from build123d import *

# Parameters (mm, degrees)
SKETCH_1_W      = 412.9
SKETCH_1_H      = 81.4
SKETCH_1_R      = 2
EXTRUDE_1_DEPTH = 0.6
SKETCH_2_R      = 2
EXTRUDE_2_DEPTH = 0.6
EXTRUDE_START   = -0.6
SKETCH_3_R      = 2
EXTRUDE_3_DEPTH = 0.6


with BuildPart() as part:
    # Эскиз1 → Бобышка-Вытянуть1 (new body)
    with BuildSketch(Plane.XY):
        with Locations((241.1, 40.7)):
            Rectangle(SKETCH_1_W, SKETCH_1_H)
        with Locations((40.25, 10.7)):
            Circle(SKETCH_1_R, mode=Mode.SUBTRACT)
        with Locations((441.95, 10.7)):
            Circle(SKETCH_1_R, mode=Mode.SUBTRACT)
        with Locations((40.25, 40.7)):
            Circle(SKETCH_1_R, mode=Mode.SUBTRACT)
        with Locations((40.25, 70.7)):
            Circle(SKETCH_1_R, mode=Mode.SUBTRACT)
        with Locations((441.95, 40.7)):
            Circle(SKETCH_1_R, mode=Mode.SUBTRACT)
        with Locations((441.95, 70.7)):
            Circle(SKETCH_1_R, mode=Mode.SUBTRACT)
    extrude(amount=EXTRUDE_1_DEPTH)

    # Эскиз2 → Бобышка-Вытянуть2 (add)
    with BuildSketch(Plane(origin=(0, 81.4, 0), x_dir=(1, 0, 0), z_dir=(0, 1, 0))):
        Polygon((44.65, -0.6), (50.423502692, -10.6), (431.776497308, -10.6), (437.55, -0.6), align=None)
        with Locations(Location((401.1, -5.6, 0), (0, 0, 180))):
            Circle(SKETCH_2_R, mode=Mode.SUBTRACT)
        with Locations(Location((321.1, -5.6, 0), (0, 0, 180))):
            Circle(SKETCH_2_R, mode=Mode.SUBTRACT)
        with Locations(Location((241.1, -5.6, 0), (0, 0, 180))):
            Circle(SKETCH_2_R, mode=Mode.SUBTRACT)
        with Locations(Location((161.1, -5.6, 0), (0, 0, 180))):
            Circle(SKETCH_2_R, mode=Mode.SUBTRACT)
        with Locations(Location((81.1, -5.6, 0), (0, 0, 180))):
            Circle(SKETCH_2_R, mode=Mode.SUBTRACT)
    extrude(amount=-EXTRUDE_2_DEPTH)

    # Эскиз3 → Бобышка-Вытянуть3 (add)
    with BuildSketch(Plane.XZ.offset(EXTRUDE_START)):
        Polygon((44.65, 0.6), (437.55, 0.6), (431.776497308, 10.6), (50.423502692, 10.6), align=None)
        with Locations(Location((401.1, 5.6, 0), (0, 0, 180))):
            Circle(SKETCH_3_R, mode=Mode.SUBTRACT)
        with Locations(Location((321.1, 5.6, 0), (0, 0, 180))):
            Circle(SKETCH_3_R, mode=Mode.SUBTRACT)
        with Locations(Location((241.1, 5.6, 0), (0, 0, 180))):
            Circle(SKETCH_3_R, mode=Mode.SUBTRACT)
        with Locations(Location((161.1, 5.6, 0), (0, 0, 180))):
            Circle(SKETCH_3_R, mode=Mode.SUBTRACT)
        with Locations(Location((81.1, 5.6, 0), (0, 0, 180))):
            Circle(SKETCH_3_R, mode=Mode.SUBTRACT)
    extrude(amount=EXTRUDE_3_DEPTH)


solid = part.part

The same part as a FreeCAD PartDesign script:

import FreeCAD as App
import Part
import Sketcher
from FreeCAD import Vector
Q = App.Units.Quantity

doc = App.newDocument("Part")
body = doc.addObject("PartDesign::Body", "Body")

sketch1 = doc.addObject("Sketcher::SketchObject", "Sketch")
body.addObject(sketch1)
sketch1.AttachmentSupport = (doc.XY_Plane, [""])
sketch1.MapMode = "FlatFace"
sketch1.addGeometry([
    Part.LineSegment(Vector(34.65, 81.4, 0), Vector(34.65, 0, 0)),
    Part.LineSegment(Vector(34.65, 0, 0), Vector(447.55, 0, 0)),
    Part.LineSegment(Vector(447.55, 0, 0), Vector(447.55, 81.4, 0)),
    Part.LineSegment(Vector(447.55, 81.4, 0), Vector(34.65, 81.4, 0)),
    Part.Circle(Vector(40.25, 10.7, 0), Vector(0, 0, 1), 2),
    Part.Circle(Vector(441.95, 10.7, 0), Vector(0, 0, 1), 2),
    Part.Circle(Vector(40.25, 40.7, 0), Vector(0, 0, 1), 2),
    Part.Circle(Vector(40.25, 70.7, 0), Vector(0, 0, 1), 2),
    Part.Circle(Vector(441.95, 40.7, 0), Vector(0, 0, 1), 2),
    Part.Circle(Vector(441.95, 70.7, 0), Vector(0, 0, 1), 2),
], False)
sketch1.addConstraint([
    Sketcher.Constraint("Coincident", 0, 2, 1, 1),
    Sketcher.Constraint("Coincident", 1, 2, 2, 1),
    Sketcher.Constraint("Coincident", 2, 2, 3, 1),
    Sketcher.Constraint("Coincident", 3, 2, 0, 1),
    Sketcher.Constraint("Vertical", 0),
    Sketcher.Constraint("Horizontal", 1),
    Sketcher.Constraint("Vertical", 2),
    Sketcher.Constraint("Horizontal", 3),
    Sketcher.Constraint("Equal", 4, 5),
    Sketcher.Constraint("Equal", 5, 6),
    Sketcher.Constraint("Equal", 6, 7),
    Sketcher.Constraint("Equal", 7, 8),
    Sketcher.Constraint("Equal", 8, 9),
    Sketcher.Constraint("PointOnObject", 0, 2, -1),
    Sketcher.Constraint("Horizontal", 4, 3, 5, 3),
    Sketcher.Constraint("Horizontal", 6, 3, 8, 3),
    Sketcher.Constraint("Horizontal", 7, 3, 9, 3),
    Sketcher.Constraint("Vertical", 4, 3, 6, 3),
    Sketcher.Constraint("Vertical", 6, 3, 7, 3),
    Sketcher.Constraint("Vertical", 5, 3, 8, 3),
    Sketcher.Constraint("Vertical", 8, 3, 9, 3),
    Sketcher.Constraint("Diameter", 4, Q("4 mm")),
    Sketcher.Constraint("DistanceX", 1, 1, 1, 2, Q("412.9 mm")),
    Sketcher.Constraint("DistanceY", 0, 2, 0, 1, Q("81.4 mm")),
    Sketcher.Constraint("DistanceY", 4, 3, 6, 3, Q("30 mm")),
    Sketcher.Constraint("DistanceY", 6, 3, 7, 3, Q("30 mm")),
    Sketcher.Constraint("DistanceY", -1, 1, 4, 3, Q("10.7 mm")),
    Sketcher.Constraint("DistanceX", 4, 3, 5, 3, Q("401.7 mm")),
    Sketcher.Constraint("DistanceX", 0, 2, 4, 3, Q("5.6 mm")),
    Sketcher.Constraint("DistanceX", -1, 1, 4, 3, Q("40.25 mm")),
])
pad1 = doc.addObject("PartDesign::Pad", "Pad")
body.addObject(pad1)
pad1.Profile = sketch1
pad1.Length = 0.6

sketch2 = doc.addObject("Sketcher::SketchObject", "Sketch001")
body.addObject(sketch2)
sketch2.AttachmentSupport = (doc.XZ_Plane, [""])
sketch2.MapMode = "FlatFace"
sketch2.AttachmentOffset = App.Placement(Vector(0, 0, -81.4), App.Rotation())
sketch2.addGeometry([
    Part.LineSegment(Vector(44.65, 0.6, 0), Vector(50.423503, 10.6, 0)),
    Part.LineSegment(Vector(50.423503, 10.6, 0), Vector(431.776497, 10.6, 0)),
    Part.LineSegment(Vector(431.776497, 10.6, 0), Vector(437.55, 0.6, 0)),
    Part.LineSegment(Vector(437.55, 0.6, 0), Vector(44.65, 0.6, 0)),
    Part.Circle(Vector(81.1, 5.6, 0), Vector(0, 0, 1), 2),
    Part.Circle(Vector(161.1, 5.6, 0), Vector(0, 0, 1), 2),
    Part.Circle(Vector(241.1, 5.6, 0), Vector(0, 0, 1), 2),
    Part.Circle(Vector(321.1, 5.6, 0), Vector(0, 0, 1), 2),
    Part.Circle(Vector(401.1, 5.6, 0), Vector(0, 0, 1), 2),
], False)
sketch2.addConstraint([
    Sketcher.Constraint("Coincident", 0, 2, 1, 1),
    Sketcher.Constraint("Coincident", 1, 2, 2, 1),
    Sketcher.Constraint("Coincident", 2, 2, 3, 1),
    Sketcher.Constraint("Coincident", 3, 2, 0, 1),
    Sketcher.Constraint("Horizontal", 1),
    Sketcher.Constraint("Horizontal", 3),
    Sketcher.Constraint("Equal", 4, 5),
    Sketcher.Constraint("Equal", 5, 6),
    Sketcher.Constraint("Equal", 6, 7),
    Sketcher.Constraint("Equal", 7, 8),
    Sketcher.Constraint("Horizontal", 4, 3, 5, 3),
    Sketcher.Constraint("Horizontal", 5, 3, 6, 3),
    Sketcher.Constraint("Horizontal", 6, 3, 7, 3),
    Sketcher.Constraint("Horizontal", 7, 3, 8, 3),
    Sketcher.Constraint("Equal", 0, 2),
    Sketcher.Constraint("Diameter", 4, Q("4 mm")),
    Sketcher.Constraint("Angle", 0, Q("60 deg")),
    Sketcher.Constraint("DistanceX", 3, 2, 3, 1, Q("392.9 mm")),
    Sketcher.Constraint("DistanceX", 4, 3, 5, 3, Q("80 mm")),
    Sketcher.Constraint("DistanceX", 5, 3, 6, 3, Q("80 mm")),
    Sketcher.Constraint("DistanceX", 6, 3, 7, 3, Q("80 mm")),
    Sketcher.Constraint("DistanceX", 7, 3, 8, 3, Q("80 mm")),
    Sketcher.Constraint("DistanceY", 4, 3, 0, 2, Q("5 mm")),
    Sketcher.Constraint("DistanceY", 2, 2, 1, 2, Q("10 mm")),
    Sketcher.Constraint("DistanceX", -1, 1, 4, 3, Q("81.1 mm")),
    Sketcher.Constraint("DistanceY", -1, 1, 4, 3, Q("5.6 mm")),
    Sketcher.Constraint("DistanceX", -1, 1, 2, 2, Q("437.55 mm")),
])
pad2 = doc.addObject("PartDesign::Pad", "Pad001")
body.addObject(pad2)
pad2.Profile = sketch2
pad2.Length = 0.6

sketch3 = doc.addObject("Sketcher::SketchObject", "Sketch002")
body.addObject(sketch3)
sketch3.AttachmentSupport = (doc.XZ_Plane, [""])
sketch3.MapMode = "FlatFace"
sketch3.AttachmentOffset = App.Placement(Vector(0, 0, -0.6), App.Rotation())
sketch3.addGeometry([
    Part.LineSegment(Vector(44.65, 0.6, 0), Vector(437.55, 0.6, 0)),
    Part.LineSegment(Vector(437.55, 0.6, 0), Vector(431.776497, 10.6, 0)),
    Part.LineSegment(Vector(431.776497, 10.6, 0), Vector(50.423503, 10.6, 0)),
    Part.LineSegment(Vector(50.423503, 10.6, 0), Vector(44.65, 0.6, 0)),
    Part.Circle(Vector(81.1, 5.6, 0), Vector(0, 0, 1), 2),
    Part.Circle(Vector(161.1, 5.6, 0), Vector(0, 0, 1), 2),
    Part.Circle(Vector(241.1, 5.6, 0), Vector(0, 0, 1), 2),
    Part.Circle(Vector(321.1, 5.6, 0), Vector(0, 0, 1), 2),
    Part.Circle(Vector(401.1, 5.6, 0), Vector(0, 0, 1), 2),
], False)
sketch3.addConstraint([
    Sketcher.Constraint("Coincident", 0, 2, 1, 1),
    Sketcher.Constraint("Coincident", 1, 2, 2, 1),
    Sketcher.Constraint("Coincident", 2, 2, 3, 1),
    Sketcher.Constraint("Coincident", 3, 2, 0, 1),
    Sketcher.Constraint("Horizontal", 0),
    Sketcher.Constraint("Horizontal", 2),
    Sketcher.Constraint("Equal", 4, 5),
    Sketcher.Constraint("Equal", 5, 6),
    Sketcher.Constraint("Equal", 6, 7),
    Sketcher.Constraint("Equal", 7, 8),
    Sketcher.Constraint("Horizontal", 4, 3, 5, 3),
    Sketcher.Constraint("Horizontal", 5, 3, 6, 3),
    Sketcher.Constraint("Horizontal", 6, 3, 7, 3),
    Sketcher.Constraint("Horizontal", 7, 3, 8, 3),
    Sketcher.Constraint("Equal", 1, 3),
    Sketcher.Constraint("Diameter", 4, Q("4 mm")),
    Sketcher.Constraint("Angle", 1, Q("120 deg")),
    Sketcher.Constraint("DistanceX", 0, 1, 0, 2, Q("392.9 mm")),
    Sketcher.Constraint("DistanceX", 4, 3, 5, 3, Q("80 mm")),
    Sketcher.Constraint("DistanceX", 5, 3, 6, 3, Q("80 mm")),
    Sketcher.Constraint("DistanceX", 6, 3, 7, 3, Q("80 mm")),
    Sketcher.Constraint("DistanceX", 7, 3, 8, 3, Q("80 mm")),
    Sketcher.Constraint("DistanceY", 0, 2, 8, 3, Q("5 mm")),
    Sketcher.Constraint("DistanceY", 0, 2, 1, 2, Q("10 mm")),
    Sketcher.Constraint("DistanceX", -1, 1, 4, 3, Q("81.1 mm")),
    Sketcher.Constraint("DistanceY", -1, 1, 4, 3, Q("5.6 mm")),
    Sketcher.Constraint("DistanceX", -1, 1, 0, 2, Q("437.55 mm")),
])
pad3 = doc.addObject("PartDesign::Pad", "Pad002")
body.addObject(pad3)
pad3.Profile = sketch3
pad3.Length = 0.6

doc.recompute()
